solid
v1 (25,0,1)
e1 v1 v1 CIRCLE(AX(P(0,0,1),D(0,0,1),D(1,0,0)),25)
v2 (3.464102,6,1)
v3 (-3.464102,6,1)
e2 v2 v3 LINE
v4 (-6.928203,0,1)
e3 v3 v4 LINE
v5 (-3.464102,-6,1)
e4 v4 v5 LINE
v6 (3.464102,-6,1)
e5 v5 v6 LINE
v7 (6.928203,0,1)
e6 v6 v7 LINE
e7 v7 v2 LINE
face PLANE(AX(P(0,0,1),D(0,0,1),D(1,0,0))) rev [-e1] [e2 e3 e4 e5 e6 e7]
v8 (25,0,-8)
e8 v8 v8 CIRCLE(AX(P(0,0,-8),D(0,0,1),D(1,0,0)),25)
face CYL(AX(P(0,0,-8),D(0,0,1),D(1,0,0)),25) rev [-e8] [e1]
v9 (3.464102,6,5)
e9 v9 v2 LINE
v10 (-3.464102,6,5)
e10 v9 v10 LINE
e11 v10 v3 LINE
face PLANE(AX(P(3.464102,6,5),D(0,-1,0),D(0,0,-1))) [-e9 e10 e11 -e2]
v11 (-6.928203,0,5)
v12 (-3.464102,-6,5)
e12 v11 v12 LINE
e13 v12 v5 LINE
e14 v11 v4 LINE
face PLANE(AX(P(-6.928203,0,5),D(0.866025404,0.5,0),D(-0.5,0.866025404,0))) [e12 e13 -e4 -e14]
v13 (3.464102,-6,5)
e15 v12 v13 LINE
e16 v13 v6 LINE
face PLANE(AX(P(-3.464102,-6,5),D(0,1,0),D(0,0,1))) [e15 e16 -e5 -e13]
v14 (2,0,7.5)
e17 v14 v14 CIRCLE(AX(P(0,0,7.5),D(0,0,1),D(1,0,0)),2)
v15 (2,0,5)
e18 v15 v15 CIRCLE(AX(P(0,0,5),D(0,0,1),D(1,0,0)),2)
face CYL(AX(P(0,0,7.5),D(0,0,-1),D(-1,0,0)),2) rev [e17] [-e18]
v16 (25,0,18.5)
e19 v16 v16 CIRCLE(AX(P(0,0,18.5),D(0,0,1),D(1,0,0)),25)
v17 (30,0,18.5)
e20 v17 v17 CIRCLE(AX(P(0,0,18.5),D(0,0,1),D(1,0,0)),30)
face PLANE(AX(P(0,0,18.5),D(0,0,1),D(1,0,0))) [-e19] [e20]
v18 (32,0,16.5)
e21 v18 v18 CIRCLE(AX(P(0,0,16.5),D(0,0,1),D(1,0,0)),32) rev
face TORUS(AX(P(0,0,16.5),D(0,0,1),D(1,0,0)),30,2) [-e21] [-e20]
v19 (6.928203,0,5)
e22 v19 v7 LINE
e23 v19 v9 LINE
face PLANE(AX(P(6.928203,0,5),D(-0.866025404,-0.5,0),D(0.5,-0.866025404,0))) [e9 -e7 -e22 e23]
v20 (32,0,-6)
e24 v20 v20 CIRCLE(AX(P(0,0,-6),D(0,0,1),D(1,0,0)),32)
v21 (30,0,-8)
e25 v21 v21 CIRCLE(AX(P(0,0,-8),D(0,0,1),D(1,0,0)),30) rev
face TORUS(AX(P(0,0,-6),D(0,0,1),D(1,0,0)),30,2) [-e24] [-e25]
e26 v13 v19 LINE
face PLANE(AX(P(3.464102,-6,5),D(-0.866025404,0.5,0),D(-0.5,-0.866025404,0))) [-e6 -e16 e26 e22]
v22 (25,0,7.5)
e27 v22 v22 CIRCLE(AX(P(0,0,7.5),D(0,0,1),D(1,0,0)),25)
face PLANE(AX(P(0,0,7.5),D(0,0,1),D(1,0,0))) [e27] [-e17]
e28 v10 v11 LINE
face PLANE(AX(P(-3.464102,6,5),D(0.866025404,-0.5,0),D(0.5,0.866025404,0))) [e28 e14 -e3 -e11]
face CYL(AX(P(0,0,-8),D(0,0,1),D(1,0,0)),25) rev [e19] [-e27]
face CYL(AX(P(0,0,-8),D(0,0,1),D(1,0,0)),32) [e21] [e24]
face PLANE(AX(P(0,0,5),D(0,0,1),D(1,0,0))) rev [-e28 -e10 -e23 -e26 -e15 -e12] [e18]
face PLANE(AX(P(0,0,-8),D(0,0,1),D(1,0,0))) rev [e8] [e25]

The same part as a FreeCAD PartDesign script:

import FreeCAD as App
import Part
import Sketcher

V = App.Vector
Q = App.Units.Quantity


def edges_at(feature, points):
    """Names of the edges that pass closest to the given points."""
    edges = feature.Shape.Edges
    near = lambda p: min(range(len(edges)), key=lambda i: edges[i].distToShape(Part.Vertex(*p))[0])
    return sorted({f"Edge{near(p) + 1}" for p in points})

doc = App.newDocument("Part")
body = doc.addObject("PartDesign::Body", "Body")

# Sketch on XY plane
sketch1 = body.newObject("Sketcher::SketchObject", "Sketch")
sketch1.AttachmentSupport = (doc.getObject("XY_Plane"), [""])
sketch1.MapMode = "FlatFace"
sketch1.AttachmentOffset = App.Placement(V(0, 0, 1), App.Rotation())
sketch1.addGeometry([
    Part.Circle(V(0, 0, 0), V(0, 0, 1), 25),  # 0
    Part.LineSegment(V(-3, 6, 0), V(3, 6, 0)),  # 1
    Part.LineSegment(V(3, 6, 0), V(7, 0, 0)),  # 2
    Part.LineSegment(V(7, 0, 0), V(3, -6, 0)),  # 3
    Part.LineSegment(V(3, -6, 0), V(-3, -6, 0)),  # 4
    Part.LineSegment(V(-3, -6, 0), V(-7, 0, 0)),  # 5
    Part.LineSegment(V(-7, 0, 0), V(-3, 6, 0)),  # 6
], False)
sketch1.addConstraint([
    Sketcher.Constraint("Coincident", 1, 2, 2, 1),
    Sketcher.Constraint("Coincident", 2, 2, 3, 1),
    Sketcher.Constraint("Coincident", 3, 2, 4, 1),
    Sketcher.Constraint("Coincident", 4, 2, 5, 1),
    Sketcher.Constraint("Coincident", 5, 2, 6, 1),
    Sketcher.Constraint("Coincident", 6, 2, 1, 1),
    Sketcher.Constraint("Horizontal", 1),
    Sketcher.Constraint("Horizontal", 4),
    Sketcher.Constraint("Coincident", 0, 3, -1, 1),
    Sketcher.Constraint("Symmetric", 1, 2, 4, 2, -1, 1),
    Sketcher.Constraint("Symmetric", 2, 2, 5, 2, -1, 1),
    Sketcher.Constraint("PointOnObject", 2, 2, -1),
    Sketcher.Constraint("Parallel", 3, 6),
    Sketcher.Constraint("Vertical", 1, 2, 3, 2),
    Sketcher.Constraint("Diameter", 0, 50.0),
    Sketcher.Constraint("Angle", 2, Q("-60 deg")),
    Sketcher.Constraint("DistanceY", -1, 1, 1, 2, 6.0),
    Sketcher.Constraint("DistanceX", -1, 1, 1, 2, 3.464102),
])
pad1 = body.newObject("PartDesign::Pad", "Pad")
pad1.Profile = sketch1
pad1.Length = 4

# Sketch on XY plane
sketch2 = body.newObject("Sketcher::SketchObject", "Sketch001")
sketch2.AttachmentSupport = (doc.getObject("XY_Plane"), [""])
sketch2.MapMode = "FlatFace"
sketch2.AttachmentOffset = App.Placement(V(0, 0, 5), App.Rotation())
sketch2.addGeometry([
    Part.Circle(V(0, 0, 0), V(0, 0, 1), 25),
    Part.Circle(V(0, 0, 0), V(0, 0, 1), 2),
], False)
sketch2.addConstraint([
    Sketcher.Constraint("Coincident", 0, 3, -1, 1),
    Sketcher.Constraint("Coincident", 1, 3, -1, 1),
    Sketcher.Constraint("Diameter", 0, 50.0),
    Sketcher.Constraint("Diameter", 1, 4.0),
])
pad2 = body.newObject("PartDesign::Pad", "Pad001")
pad2.Profile = sketch2
pad2.Length = 2.5

# Sketch on XY plane
sketch3 = body.newObject("Sketcher::SketchObject", "Sketch002")
sketch3.AttachmentSupport = (doc.getObject("XY_Plane"), [""])
sketch3.MapMode = "FlatFace"
sketch3.AttachmentOffset = App.Placement(V(0, 0, -8), App.Rotation())
sketch3.addGeometry([
    Part.Circle(V(0, 0, 0), V(0, 0, 1), 32),
    Part.Circle(V(0, 0, 0), V(0, 0, 1), 25),
], False)
sketch3.addConstraint([
    Sketcher.Constraint("Coincident", 0, 3, -1, 1),
    Sketcher.Constraint("Coincident", 1, 3, -1, 1),
    Sketcher.Constraint("Diameter", 0, 64.0),
    Sketcher.Constraint("Diameter", 1, 50.0),
])
pad3 = body.newObject("PartDesign::Pad", "Pad002")
pad3.Profile = sketch3
pad3.Length = 26.5
doc.recompute()

fillet = body.newObject("PartDesign::Fillet", "Fillet")
fillet.Base = (pad3, edges_at(pad3, [(-32, 0, -8), (-32, 0, 18.5)]))
fillet.Radius = 2

doc.recompute()
